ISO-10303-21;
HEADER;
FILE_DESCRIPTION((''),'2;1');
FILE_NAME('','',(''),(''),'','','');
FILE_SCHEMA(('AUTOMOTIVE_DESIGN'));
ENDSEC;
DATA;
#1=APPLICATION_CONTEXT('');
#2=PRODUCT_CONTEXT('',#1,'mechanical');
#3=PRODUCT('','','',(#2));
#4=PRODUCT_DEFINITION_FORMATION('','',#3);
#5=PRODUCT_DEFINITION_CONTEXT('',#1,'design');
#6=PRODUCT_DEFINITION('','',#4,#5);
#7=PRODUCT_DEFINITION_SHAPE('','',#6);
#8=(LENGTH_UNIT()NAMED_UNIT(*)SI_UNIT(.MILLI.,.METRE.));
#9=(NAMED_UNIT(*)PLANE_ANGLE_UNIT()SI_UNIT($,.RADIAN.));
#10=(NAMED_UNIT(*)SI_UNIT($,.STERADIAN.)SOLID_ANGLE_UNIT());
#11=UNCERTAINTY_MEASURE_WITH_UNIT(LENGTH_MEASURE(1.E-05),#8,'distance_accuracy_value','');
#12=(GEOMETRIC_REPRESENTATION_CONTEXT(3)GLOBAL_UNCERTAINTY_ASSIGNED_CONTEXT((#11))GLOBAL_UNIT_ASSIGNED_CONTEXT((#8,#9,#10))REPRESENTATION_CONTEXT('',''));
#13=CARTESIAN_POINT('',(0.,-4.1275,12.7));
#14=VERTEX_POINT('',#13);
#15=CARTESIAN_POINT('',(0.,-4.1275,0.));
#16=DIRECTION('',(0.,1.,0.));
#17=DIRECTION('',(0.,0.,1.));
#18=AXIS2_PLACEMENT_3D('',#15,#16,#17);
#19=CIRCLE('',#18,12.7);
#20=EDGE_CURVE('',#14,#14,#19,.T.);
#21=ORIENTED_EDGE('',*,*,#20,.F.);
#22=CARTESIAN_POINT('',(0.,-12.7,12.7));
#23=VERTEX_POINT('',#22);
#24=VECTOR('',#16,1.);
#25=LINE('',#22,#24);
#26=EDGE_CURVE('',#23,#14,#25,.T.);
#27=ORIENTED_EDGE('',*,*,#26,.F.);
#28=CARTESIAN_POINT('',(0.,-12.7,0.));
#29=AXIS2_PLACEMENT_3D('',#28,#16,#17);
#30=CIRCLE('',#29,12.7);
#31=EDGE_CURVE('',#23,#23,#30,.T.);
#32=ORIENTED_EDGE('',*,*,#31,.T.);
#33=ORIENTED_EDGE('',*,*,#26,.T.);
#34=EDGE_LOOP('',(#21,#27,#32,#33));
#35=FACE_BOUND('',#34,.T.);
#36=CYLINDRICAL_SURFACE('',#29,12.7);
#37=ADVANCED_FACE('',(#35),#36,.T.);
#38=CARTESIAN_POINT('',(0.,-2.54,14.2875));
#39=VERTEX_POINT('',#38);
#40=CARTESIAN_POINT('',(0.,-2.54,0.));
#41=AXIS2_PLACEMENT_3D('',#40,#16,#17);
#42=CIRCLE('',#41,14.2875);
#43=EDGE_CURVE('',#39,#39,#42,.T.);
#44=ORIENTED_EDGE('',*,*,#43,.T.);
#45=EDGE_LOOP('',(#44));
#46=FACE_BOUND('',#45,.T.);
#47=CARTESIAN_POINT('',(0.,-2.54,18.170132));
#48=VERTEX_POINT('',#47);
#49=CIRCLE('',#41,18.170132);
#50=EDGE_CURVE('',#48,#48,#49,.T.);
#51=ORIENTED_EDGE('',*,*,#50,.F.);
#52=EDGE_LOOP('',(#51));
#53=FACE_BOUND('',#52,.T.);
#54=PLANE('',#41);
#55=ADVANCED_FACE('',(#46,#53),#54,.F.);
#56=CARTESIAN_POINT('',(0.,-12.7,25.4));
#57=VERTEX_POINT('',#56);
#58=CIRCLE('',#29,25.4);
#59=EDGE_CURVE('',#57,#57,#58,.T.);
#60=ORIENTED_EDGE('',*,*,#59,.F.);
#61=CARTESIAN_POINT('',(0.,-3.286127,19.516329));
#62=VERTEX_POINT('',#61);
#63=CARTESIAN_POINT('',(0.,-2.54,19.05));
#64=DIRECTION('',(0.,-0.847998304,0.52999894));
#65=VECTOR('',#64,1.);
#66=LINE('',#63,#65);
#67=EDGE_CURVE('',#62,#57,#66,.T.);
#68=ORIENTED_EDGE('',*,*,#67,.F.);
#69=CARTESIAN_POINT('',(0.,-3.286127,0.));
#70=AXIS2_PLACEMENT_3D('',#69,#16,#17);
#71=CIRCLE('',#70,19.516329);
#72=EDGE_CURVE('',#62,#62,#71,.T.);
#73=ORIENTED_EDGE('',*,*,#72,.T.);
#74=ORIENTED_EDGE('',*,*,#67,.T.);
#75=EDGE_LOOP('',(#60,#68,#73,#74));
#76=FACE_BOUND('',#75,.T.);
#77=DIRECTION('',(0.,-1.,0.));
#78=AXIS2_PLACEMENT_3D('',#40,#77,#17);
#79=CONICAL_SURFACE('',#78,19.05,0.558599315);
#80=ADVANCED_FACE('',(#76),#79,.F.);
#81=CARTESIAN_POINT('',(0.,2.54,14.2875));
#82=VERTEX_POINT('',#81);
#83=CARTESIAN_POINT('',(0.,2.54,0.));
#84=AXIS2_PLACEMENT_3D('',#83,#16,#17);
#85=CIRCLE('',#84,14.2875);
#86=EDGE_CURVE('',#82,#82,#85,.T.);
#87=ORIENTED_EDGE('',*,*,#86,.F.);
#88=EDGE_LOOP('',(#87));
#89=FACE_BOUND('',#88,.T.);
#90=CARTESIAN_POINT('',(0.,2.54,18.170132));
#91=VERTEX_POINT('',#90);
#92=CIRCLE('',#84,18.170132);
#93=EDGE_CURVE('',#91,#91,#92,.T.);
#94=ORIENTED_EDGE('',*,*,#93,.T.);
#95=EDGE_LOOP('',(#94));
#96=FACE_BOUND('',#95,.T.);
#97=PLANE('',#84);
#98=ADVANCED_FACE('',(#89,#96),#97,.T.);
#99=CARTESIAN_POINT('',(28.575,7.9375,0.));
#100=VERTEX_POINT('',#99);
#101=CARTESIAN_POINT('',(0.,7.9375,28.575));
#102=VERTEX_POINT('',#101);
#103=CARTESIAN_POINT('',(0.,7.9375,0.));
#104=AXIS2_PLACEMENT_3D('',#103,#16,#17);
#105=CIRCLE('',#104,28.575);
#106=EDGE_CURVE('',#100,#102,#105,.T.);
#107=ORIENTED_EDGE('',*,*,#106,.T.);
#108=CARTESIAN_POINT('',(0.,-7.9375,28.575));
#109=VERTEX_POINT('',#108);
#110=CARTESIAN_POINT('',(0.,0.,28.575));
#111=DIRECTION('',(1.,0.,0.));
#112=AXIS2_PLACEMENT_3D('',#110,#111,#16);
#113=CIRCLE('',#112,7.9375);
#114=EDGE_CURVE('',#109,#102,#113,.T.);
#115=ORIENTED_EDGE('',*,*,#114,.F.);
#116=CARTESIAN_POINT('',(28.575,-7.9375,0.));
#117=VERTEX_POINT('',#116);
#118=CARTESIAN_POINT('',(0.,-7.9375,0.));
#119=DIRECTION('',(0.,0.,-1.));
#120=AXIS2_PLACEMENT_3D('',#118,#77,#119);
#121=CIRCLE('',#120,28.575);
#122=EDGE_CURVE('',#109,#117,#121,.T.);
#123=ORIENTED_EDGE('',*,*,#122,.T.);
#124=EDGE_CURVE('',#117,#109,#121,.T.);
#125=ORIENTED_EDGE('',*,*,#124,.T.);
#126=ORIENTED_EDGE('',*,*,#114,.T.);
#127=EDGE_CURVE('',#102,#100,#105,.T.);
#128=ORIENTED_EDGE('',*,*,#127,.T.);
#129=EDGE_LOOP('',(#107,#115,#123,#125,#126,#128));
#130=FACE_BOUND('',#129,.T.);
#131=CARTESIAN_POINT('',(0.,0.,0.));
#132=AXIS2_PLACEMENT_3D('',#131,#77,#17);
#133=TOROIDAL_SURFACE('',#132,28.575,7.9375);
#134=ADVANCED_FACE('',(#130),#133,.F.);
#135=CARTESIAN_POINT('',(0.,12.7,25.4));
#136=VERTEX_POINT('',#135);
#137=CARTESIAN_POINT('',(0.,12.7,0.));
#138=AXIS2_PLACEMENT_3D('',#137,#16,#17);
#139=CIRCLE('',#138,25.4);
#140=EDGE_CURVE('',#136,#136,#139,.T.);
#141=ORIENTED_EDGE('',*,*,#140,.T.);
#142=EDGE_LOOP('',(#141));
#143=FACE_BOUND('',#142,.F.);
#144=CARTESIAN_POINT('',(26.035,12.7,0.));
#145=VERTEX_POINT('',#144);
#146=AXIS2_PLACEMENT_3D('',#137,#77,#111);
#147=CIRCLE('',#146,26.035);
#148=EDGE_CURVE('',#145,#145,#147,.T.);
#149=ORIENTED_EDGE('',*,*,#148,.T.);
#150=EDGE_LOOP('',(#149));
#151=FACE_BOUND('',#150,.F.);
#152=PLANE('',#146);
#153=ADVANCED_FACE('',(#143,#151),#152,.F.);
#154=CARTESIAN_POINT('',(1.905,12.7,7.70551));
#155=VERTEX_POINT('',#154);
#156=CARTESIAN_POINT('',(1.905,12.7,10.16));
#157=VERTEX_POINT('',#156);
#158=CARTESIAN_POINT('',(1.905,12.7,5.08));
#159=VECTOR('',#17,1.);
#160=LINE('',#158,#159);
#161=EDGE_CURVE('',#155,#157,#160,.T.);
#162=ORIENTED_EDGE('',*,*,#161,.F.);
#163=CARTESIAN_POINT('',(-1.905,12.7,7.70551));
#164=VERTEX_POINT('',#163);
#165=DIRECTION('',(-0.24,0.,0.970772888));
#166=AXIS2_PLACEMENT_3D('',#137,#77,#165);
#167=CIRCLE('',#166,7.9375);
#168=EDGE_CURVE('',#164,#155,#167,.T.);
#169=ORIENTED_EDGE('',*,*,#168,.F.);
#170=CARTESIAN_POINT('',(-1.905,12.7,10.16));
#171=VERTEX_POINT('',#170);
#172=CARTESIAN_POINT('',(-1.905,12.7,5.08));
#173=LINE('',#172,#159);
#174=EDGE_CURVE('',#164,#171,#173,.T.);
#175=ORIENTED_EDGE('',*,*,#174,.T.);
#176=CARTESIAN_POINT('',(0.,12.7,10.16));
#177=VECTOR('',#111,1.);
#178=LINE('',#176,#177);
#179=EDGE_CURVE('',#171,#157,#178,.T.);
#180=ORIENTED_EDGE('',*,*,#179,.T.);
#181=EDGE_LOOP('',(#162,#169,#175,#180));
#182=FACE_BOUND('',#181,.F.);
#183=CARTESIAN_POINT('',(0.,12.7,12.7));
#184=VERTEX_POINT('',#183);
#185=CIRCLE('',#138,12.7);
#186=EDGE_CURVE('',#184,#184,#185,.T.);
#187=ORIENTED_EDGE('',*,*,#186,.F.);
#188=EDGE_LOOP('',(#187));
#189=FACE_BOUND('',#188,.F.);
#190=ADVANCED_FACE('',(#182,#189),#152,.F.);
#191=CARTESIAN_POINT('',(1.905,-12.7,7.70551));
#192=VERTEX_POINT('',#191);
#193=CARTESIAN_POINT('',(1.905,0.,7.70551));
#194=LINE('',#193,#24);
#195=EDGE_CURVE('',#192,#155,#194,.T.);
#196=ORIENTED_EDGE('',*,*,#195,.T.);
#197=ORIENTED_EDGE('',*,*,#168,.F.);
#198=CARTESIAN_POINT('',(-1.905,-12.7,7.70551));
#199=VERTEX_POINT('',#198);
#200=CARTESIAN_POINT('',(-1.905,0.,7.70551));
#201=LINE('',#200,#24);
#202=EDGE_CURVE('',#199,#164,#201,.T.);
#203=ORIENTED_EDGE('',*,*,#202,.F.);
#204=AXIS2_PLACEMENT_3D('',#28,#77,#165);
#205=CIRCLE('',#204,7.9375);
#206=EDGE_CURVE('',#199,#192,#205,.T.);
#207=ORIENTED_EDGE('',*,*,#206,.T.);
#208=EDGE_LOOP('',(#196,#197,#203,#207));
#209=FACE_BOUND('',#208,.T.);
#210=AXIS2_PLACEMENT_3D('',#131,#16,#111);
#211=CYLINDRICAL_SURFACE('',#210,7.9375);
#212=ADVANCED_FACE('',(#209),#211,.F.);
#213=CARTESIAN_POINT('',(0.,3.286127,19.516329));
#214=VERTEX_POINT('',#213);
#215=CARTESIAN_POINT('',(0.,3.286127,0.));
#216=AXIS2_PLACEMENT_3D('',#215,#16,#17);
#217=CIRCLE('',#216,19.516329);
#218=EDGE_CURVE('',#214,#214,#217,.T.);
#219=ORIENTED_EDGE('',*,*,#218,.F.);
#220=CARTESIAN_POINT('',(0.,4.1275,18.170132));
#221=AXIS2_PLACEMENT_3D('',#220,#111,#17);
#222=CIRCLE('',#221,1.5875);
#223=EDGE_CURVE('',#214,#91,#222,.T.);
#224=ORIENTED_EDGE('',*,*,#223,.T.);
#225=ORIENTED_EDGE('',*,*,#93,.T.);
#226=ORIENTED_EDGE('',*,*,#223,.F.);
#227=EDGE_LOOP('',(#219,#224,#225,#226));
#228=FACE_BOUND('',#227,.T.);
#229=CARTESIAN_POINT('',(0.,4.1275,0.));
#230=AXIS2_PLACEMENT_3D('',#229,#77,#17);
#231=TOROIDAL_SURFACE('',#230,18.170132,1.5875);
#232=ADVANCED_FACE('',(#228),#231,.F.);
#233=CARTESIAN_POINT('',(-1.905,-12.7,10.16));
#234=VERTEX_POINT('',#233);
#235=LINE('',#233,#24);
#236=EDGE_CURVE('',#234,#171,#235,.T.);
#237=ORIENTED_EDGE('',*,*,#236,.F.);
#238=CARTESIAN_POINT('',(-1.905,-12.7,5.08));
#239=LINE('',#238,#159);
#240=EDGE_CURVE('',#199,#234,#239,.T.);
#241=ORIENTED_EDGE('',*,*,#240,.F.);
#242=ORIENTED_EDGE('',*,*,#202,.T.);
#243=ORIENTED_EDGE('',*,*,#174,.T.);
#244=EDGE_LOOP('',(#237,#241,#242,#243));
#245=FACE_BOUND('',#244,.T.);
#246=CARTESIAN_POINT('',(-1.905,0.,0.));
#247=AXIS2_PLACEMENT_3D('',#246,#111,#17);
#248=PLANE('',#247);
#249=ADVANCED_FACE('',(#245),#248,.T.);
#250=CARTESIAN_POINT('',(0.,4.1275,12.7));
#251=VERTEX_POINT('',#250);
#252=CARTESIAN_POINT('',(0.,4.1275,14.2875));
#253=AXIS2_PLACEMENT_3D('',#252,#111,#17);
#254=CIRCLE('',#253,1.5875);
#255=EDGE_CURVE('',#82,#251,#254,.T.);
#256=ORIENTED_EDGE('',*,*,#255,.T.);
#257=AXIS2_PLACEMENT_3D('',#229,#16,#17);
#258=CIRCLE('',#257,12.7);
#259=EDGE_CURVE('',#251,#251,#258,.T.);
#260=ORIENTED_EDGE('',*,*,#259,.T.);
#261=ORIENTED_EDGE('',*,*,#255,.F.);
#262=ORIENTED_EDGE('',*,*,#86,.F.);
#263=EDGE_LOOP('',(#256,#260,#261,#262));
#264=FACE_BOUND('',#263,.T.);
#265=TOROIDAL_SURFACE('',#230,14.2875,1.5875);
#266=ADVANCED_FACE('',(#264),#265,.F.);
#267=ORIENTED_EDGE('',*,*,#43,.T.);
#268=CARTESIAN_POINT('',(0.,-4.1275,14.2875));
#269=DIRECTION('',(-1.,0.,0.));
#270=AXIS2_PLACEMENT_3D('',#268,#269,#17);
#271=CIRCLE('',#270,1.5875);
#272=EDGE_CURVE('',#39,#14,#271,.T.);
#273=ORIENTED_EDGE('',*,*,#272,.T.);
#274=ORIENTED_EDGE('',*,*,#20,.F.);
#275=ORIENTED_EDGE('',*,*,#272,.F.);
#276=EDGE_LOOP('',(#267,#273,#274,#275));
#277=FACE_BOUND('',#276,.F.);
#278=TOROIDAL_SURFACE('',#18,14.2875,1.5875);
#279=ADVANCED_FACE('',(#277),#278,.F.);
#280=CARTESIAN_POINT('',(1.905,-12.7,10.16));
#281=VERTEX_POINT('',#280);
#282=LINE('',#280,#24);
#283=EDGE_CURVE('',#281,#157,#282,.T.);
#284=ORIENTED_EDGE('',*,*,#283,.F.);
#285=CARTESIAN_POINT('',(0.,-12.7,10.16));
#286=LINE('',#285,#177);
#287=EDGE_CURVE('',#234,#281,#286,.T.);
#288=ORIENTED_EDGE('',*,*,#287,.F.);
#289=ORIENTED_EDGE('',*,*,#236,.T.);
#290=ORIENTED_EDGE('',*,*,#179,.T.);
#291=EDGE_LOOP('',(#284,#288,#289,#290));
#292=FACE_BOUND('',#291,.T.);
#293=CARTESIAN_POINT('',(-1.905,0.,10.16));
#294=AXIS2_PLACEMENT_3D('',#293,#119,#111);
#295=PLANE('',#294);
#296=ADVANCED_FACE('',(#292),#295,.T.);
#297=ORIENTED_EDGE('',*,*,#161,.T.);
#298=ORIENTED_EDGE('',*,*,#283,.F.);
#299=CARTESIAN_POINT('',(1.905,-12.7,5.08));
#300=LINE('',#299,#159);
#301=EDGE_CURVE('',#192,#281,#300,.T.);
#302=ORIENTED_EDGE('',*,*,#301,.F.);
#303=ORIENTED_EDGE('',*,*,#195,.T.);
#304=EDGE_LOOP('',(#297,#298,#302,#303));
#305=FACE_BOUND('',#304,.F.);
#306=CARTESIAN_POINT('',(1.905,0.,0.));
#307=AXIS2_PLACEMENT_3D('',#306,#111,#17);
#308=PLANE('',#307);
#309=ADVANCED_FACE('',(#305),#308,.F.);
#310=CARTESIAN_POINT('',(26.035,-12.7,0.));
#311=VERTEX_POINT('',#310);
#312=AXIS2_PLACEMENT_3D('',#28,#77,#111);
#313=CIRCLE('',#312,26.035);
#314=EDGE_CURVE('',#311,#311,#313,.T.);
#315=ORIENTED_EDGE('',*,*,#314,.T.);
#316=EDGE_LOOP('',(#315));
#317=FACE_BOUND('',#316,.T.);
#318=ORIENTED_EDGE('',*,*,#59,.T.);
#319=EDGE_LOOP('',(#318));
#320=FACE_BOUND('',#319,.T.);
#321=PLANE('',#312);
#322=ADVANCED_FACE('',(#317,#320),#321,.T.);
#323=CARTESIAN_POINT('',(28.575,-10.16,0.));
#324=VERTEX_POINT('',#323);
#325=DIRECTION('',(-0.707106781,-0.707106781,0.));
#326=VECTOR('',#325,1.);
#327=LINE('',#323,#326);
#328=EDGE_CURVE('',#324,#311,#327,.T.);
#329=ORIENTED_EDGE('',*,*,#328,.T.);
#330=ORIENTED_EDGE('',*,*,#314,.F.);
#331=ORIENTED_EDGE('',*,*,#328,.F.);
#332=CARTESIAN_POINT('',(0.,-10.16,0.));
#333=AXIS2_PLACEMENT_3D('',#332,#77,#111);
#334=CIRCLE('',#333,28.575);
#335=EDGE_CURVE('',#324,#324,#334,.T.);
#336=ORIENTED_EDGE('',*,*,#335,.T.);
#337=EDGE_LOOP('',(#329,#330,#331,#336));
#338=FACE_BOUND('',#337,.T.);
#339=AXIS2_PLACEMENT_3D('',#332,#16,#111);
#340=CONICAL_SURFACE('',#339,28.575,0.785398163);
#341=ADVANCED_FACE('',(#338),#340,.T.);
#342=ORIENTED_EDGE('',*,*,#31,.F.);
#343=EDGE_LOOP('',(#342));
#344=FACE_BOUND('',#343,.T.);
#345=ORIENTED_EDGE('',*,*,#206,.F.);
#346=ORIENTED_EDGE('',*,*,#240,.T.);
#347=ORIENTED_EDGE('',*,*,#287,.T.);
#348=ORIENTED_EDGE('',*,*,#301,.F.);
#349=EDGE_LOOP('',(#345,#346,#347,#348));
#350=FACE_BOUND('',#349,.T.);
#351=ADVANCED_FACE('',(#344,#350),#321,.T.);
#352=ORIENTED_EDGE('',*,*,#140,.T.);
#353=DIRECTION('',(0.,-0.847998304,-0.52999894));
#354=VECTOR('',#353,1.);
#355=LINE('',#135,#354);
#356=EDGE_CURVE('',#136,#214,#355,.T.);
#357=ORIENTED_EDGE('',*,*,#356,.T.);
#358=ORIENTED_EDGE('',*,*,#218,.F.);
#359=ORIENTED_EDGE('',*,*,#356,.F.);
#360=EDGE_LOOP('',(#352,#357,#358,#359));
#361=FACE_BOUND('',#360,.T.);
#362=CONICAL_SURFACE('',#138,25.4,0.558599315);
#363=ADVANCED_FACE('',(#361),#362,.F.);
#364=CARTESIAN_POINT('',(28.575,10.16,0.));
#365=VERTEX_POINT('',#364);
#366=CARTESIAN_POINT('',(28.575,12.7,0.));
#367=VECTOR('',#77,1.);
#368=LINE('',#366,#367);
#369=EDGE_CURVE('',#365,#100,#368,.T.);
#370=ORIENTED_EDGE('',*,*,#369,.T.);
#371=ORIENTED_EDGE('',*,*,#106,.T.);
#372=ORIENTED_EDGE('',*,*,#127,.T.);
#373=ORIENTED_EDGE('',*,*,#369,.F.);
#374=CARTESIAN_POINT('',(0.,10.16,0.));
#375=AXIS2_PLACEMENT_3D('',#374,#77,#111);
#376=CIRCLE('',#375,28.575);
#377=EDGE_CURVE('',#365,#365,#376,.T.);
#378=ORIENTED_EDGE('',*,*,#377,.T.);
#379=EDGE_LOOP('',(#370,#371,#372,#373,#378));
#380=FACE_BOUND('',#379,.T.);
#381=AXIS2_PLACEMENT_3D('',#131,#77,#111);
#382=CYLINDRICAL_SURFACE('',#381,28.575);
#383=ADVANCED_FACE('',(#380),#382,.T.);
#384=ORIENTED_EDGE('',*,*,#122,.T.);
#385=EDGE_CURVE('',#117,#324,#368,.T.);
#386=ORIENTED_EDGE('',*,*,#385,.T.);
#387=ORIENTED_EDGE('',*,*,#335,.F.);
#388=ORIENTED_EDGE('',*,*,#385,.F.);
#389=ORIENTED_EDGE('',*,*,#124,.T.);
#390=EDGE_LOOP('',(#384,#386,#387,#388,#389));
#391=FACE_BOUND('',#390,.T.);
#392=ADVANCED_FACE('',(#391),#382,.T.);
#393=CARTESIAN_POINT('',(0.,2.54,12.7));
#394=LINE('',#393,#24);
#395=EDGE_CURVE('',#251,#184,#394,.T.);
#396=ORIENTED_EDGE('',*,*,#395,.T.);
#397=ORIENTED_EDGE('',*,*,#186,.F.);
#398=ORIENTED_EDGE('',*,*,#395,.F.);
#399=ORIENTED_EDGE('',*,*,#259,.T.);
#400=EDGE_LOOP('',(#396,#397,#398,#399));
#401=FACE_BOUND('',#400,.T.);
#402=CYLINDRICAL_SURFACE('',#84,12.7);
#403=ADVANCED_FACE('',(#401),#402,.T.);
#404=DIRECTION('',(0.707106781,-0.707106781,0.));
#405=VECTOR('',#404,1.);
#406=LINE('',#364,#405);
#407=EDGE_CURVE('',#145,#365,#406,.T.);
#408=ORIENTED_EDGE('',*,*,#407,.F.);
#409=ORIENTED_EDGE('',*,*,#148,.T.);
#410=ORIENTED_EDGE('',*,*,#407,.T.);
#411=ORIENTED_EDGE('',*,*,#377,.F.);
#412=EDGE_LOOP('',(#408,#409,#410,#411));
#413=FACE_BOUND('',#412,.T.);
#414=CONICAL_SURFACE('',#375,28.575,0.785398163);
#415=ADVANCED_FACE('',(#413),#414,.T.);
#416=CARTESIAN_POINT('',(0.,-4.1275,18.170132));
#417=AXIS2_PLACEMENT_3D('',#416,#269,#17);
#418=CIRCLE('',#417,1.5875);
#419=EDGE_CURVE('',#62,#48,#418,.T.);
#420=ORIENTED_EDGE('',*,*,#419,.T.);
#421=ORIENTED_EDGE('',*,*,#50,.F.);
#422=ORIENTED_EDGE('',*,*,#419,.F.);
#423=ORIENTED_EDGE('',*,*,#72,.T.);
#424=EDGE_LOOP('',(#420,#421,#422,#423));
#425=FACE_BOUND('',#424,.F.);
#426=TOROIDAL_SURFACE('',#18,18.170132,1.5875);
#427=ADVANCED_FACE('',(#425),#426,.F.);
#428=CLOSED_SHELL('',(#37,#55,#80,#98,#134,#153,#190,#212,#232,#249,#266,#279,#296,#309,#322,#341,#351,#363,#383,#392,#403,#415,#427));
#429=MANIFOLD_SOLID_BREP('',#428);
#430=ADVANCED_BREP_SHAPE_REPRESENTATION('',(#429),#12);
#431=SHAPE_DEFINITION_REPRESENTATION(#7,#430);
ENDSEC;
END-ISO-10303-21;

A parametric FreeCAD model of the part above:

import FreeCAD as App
import Part
import Sketcher

V = App.Vector
Q = App.Units.Quantity


def edges_at(feature, points):
    """Names of the edges that pass closest to the given points."""
    edges = feature.Shape.Edges
    near = lambda p: min(range(len(edges)), key=lambda i: edges[i].distToShape(Part.Vertex(*p))[0])
    return sorted({f"Edge{near(p) + 1}" for p in points})


def add_polygon(sketch, points):
    """Adds a closed chain of lines whose ends are joined by coincident constraints."""
    first, n = sketch.GeometryCount, len(points)
    for a, b in zip(points, points[1:] + points[:1]):
        sketch.addGeometry(Part.LineSegment(App.Vector(*a, 0), App.Vector(*b, 0)), False)
    for i in range(n):
        sketch.addConstraint(Sketcher.Constraint("Coincident", first + i, 2, first + (i + 1) % n, 1))

doc = App.newDocument("Part")
params = doc.addObject("Spreadsheet::Sheet", "Params")
for row, (alias, value) in enumerate([
    ("sketch1_diameter", "2.25 in"),
    ("sketch1_diameter2", "0.625 in"),
    ("pad1_length", "1 in"),
    ("sketch2_diameter", "0.625 in"),
    ("groove_angle", "360 deg"),
    ("sketch3_width", "0.4 in"),
    ("sketch3_height", "0.5 in"),
    ("sketch3_height2", "0.25 in"),
    ("groove2_angle", "360 deg"),
    ("fillet_radius", "0.0625 in"),
    ("chamfer_size", "0.1 in"),
    ("chamfer_size2", "0.1 in"),
    ("sketch4_height", "0.4 in"),
    ("sketch4_width", "0.15 in"),
    ("pocket1_length", "1 in"),
], start=1):
    params.set(f"A{row}", alias)
    params.set(f"B{row}", "=" + value)
    params.setAlias(f"B{row}", alias)

body = doc.addObject("PartDesign::Body", "Body")

sketch1 = body.newObject("Sketcher::SketchObject", "Sketch")
sketch1.AttachmentSupport = (doc.getObject("XZ_Plane"), [""])
sketch1.MapMode = "FlatFace"
sketch1.addGeometry([
    Part.Circle(V(0, 0, 0), V(0, 0, 1), 29),
    Part.Circle(V(0, 0, 0), V(0, 0, 1), 8),
], False)
sketch1.addConstraint([
    Sketcher.Constraint("Coincident", 0, 3, -1, 1),
    Sketcher.Constraint("Coincident", 1, 3, -1, 1),
    Sketcher.Constraint("Diameter", 0, Q("2.25 in")),
    Sketcher.Constraint("Diameter", 1, Q("0.625 in")),
])
sketch1.setExpression("Constraints[2]", "Params.sketch1_diameter")
sketch1.setExpression("Constraints[3]", "Params.sketch1_diameter2")
pad1 = body.newObject("PartDesign::Pad", "Pad")
pad1.Profile = sketch1
pad1.setExpression("Length", "Params.pad1_length")
pad1.Midplane = True

sketch2 = body.newObject("Sketcher::SketchObject", "Sketch001")
sketch2.AttachmentSupport = (doc.getObject("YZ_Plane"), [""])
sketch2.MapMode = "FlatFace"
sketch2.addGeometry(Part.Circle(V(0, 29, 0), V(0, 0, 1), 8), False)
sketch2.addConstraint([
    Sketcher.Constraint("PointOnObject", 0, 3, -2),
    Sketcher.Constraint("Diameter", 0, Q("0.625 in")),
    Sketcher.Constraint("DistanceY", -1, 1, 0, 3, Q("1.125 in")),
])
sketch2.setExpression("Constraints[1]", "Params.sketch2_diameter")
groove = body.newObject("PartDesign::Groove", "Groove")
groove.Profile = sketch2
groove.ReferenceAxis = (sketch2, ["H_Axis"])
groove.setExpression("Angle", "Params.groove_angle")

sketch3 = body.newObject("Sketcher::SketchObject", "Sketch002")
sketch3.AttachmentSupport = (doc.getObject("YZ_Plane"), [""])
sketch3.MapMode = "FlatFace"
add_polygon(sketch3, [(13, 13), (13, 25), (3, 19), (3, 13)])
add_polygon(sketch3, [(-3, 13), (-3, 19), (-13, 25), (-13, 13)])
sketch3.addConstraint([
    Sketcher.Constraint("Vertical", 0),
    Sketcher.Constraint("Vertical", 2),
    Sketcher.Constraint("Horizontal", 3),
    Sketcher.Constraint("Vertical", 4),
    Sketcher.Constraint("Vertical", 6),
    Sketcher.Constraint("Horizontal", 7),
    Sketcher.Constraint("Symmetric", 1, 2, 4, 2, -2),
    Sketcher.Constraint("Symmetric", 0, 2, 5, 2, -2),
    Sketcher.Constraint("Horizontal", 3, 2, 6, 2),
    Sketcher.Constraint("DistanceX", 3, 1, 3, 2, Q("0.4 in")),
    Sketcher.Constraint("DistanceY", 0, 1, 0, 2, Q("0.5 in")),
    Sketcher.Constraint("DistanceY", -1, 1, 0, 2, Q("1 in")),
    Sketcher.Constraint("DistanceX", 5, 2, 0, 2, Q("1 in")),
    Sketcher.Constraint("DistanceY", 2, 2, 2, 1, Q("0.25 in")),
])
sketch3.setExpression("Constraints[17]", "Params.sketch3_width")
sketch3.setExpression("Constraints[18]", "Params.sketch3_height")
sketch3.setExpression("Constraints[21]", "Params.sketch3_height2")
groove2 = body.newObject("PartDesign::Groove", "Groove001")
groove2.Profile = sketch3
groove2.ReferenceAxis = (sketch3, ["H_Axis"])
groove2.setExpression("Angle", "Params.groove2_angle")
doc.recompute()

fillet = body.newObject("PartDesign::Fillet", "Fillet")
fillet.Base = (groove2, edges_at(groove2, [
    (0, -2.54, -19.05),
    (0, 2.54, -19.05),
    (0, -2.54, -12.7),
    (0, 2.54, -12.7),
]))
fillet.setExpression("Radius", "Params.fillet_radius")
doc.recompute()

chamfer = body.newObject("PartDesign::Chamfer", "Chamfer")
chamfer.Base = (fillet, edges_at(fillet, [(-28.575, 12.7, 0), (-28.575, -12.7, 0)]))
chamfer.ChamferType = "Two distances"
chamfer.setExpression("Size", "Params.chamfer_size")
chamfer.setExpression("Size2", "Params.chamfer_size2")

sketch4 = body.newObject("Sketcher::SketchObject", "Sketch003")
sketch4.AttachmentSupport = (doc.getObject("XZ_Plane"), [""])
sketch4.MapMode = "FlatFace"
add_polygon(sketch4, [(-1.9, 10.2), (-1.9, 0), (1.9, 0), (1.9, 10.2)])
sketch4.addConstraint([
    Sketcher.Constraint("Vertical", 0),
    Sketcher.Constraint("Horizontal", 1),
    Sketcher.Constraint("Vertical", 2),
    Sketcher.Constraint("Horizontal", 3),
    Sketcher.Constraint("Symmetric", 0, 2, 1, 2, -1, 1),
    Sketcher.Constraint("DistanceY", 0, 2, 0, 1, Q("0.4 in")),
    Sketcher.Constraint("DistanceX", 1, 1, 1, 2, Q("0.15 in")),
])
sketch4.setExpression("Constraints[9]", "Params.sketch4_height")
sketch4.setExpression("Constraints[10]", "Params.sketch4_width")
pocket1 = body.newObject("PartDesign::Pocket", "Pocket")
pocket1.Profile = sketch4
pocket1.setExpression("Length", "Params.pocket1_length")
pocket1.Midplane = True

doc.recompute()
